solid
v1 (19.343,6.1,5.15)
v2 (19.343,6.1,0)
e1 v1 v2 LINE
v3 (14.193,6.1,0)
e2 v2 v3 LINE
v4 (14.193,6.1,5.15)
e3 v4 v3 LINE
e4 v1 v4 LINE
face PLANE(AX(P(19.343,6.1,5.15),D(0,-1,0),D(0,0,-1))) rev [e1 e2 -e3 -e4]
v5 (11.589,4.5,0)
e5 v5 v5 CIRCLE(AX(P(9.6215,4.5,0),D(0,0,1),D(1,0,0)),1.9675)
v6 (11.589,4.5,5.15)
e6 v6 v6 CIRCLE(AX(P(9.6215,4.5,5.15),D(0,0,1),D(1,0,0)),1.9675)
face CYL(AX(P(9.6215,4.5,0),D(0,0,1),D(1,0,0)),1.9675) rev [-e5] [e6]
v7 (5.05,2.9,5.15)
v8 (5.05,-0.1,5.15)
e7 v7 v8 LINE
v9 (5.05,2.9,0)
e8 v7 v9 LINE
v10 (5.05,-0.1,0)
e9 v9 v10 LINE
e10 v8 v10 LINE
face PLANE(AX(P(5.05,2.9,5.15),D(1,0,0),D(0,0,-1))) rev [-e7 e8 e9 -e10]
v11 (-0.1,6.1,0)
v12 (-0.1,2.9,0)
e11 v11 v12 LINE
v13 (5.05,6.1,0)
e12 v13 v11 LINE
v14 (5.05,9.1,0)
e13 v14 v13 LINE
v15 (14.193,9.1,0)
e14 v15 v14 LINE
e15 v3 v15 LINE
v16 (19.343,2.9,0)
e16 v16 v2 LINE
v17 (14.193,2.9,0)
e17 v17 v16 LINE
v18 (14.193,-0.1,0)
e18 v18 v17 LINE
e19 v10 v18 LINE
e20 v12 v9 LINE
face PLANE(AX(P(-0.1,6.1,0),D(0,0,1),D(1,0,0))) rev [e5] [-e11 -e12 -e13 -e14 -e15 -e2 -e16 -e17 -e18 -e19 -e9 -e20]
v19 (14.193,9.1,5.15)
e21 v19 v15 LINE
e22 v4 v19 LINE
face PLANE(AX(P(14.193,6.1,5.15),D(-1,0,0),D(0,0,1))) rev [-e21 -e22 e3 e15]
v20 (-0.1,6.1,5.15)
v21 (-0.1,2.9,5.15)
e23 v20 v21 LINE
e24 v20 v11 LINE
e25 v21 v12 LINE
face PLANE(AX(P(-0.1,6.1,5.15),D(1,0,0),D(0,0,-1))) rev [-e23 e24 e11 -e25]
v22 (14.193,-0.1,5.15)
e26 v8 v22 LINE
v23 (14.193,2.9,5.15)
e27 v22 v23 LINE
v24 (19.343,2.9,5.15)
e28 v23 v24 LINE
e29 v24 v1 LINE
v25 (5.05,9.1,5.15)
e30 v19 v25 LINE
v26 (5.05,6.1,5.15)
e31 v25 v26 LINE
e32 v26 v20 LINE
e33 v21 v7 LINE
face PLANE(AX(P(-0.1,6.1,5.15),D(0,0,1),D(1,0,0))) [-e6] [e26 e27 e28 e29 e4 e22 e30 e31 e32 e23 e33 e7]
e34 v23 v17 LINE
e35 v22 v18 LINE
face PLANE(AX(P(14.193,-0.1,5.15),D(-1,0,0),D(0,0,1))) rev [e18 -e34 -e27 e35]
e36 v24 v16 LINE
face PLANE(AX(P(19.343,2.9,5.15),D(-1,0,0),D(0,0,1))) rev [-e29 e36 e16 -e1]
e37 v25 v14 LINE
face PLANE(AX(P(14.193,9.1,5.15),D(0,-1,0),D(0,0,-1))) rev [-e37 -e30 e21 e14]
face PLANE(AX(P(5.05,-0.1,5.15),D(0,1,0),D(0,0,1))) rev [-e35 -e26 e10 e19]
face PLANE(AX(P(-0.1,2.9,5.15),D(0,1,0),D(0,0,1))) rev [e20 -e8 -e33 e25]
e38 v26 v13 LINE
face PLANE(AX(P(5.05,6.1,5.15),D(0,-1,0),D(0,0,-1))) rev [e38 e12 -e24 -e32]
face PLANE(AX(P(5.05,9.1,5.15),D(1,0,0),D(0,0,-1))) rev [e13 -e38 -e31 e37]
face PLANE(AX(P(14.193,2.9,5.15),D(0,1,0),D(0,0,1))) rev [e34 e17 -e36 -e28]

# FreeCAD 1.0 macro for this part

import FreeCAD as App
import Part
import Sketcher

V = App.Vector

doc = App.newDocument("Part")
body = doc.addObject("PartDesign::Body", "Body")

# Sketch on XY plane
sketch1 = doc.addObject("Sketcher::SketchObject", "Sketch")
body.addObject(sketch1)
sketch1.AttachmentSupport = (doc.XY_Plane, [""])
sketch1.MapMode = "FlatFace"
sketch1.addGeometry([
    Part.LineSegment(V(-0.1, 6.1, 0), V(-0.1, 2.9, 0)),  # 0
    Part.LineSegment(V(-0.1, 2.9, 0), V(5, 2.9, 0)),  # 1
    Part.LineSegment(V(5, 2.9, 0), V(5, -0.1, 0)),  # 2
    Part.LineSegment(V(5, -0.1, 0), V(14.2, -0.1, 0)),  # 3
    Part.LineSegment(V(14.2, -0.1, 0), V(14.2, 2.9, 0)),  # 4
    Part.LineSegment(V(14.2, 2.9, 0), V(19.3, 2.9, 0)),  # 5
    Part.LineSegment(V(19.3, 2.9, 0), V(19.3, 6.1, 0)),  # 6
    Part.LineSegment(V(19.3, 6.1, 0), V(14.2, 6.1, 0)),  # 7
    Part.LineSegment(V(14.2, 6.1, 0), V(14.2, 9.1, 0)),  # 8
    Part.LineSegment(V(14.2, 9.1, 0), V(5, 9.1, 0)),  # 9
    Part.LineSegment(V(5, 9.1, 0), V(5, 6.1, 0)),  # 10
    Part.LineSegment(V(5, 6.1, 0), V(-0.1, 6.1, 0)),  # 11
], False)
sketch1.addConstraint([
    Sketcher.Constraint("Coincident", 0, 2, 1, 1),
    Sketcher.Constraint("Coincident", 1, 2, 2, 1),
    Sketcher.Constraint("Coincident", 2, 2, 3, 1),
    Sketcher.Constraint("Coincident", 3, 2, 4, 1),
    Sketcher.Constraint("Coincident", 4, 2, 5, 1),
    Sketcher.Constraint("Coincident", 5, 2, 6, 1),
    Sketcher.Constraint("Coincident", 6, 2, 7, 1),
    Sketcher.Constraint("Coincident", 7, 2, 8, 1),
    Sketcher.Constraint("Coincident", 8, 2, 9, 1),
    Sketcher.Constraint("Coincident", 9, 2, 10, 1),
    Sketcher.Constraint("Coincident", 10, 2, 11, 1),
    Sketcher.Constraint("Coincident", 11, 2, 0, 1),
    Sketcher.Constraint("Vertical", 0),
    Sketcher.Constraint("Horizontal", 1),
    Sketcher.Constraint("Vertical", 2),
    Sketcher.Constraint("Horizontal", 3),
    Sketcher.Constraint("Vertical", 4),
    Sketcher.Constraint("Horizontal", 5),
    Sketcher.Constraint("Vertical", 6),
    Sketcher.Constraint("Horizontal", 7),
    Sketcher.Constraint("Vertical", 8),
    Sketcher.Constraint("Horizontal", 9),
    Sketcher.Constraint("Vertical", 10),
    Sketcher.Constraint("Horizontal", 11),
    Sketcher.Constraint("Horizontal", 1, 2, 4, 2),
    Sketcher.Constraint("Horizontal", 7, 2, 10, 2),
    Sketcher.Constraint("Vertical", 4, 2, 7, 2),
    Sketcher.Constraint("Vertical", 2, 2, 9, 2),
    Sketcher.Constraint("Equal", 1, 5),
    Sketcher.Constraint("Equal", 4, 8),
    Sketcher.Constraint("DistanceY", 2, 2, 2, 1, 3.0),
    Sketcher.Constraint("DistanceY", 0, 2, 0, 1, 3.2),
    Sketcher.Constraint("DistanceX", 1, 1, 1, 2, 5.15),
    Sketcher.Constraint("DistanceX", 0, 2, -1, 1, 0.1),
    Sketcher.Constraint("DistanceY", -1, 1, 0, 2, 2.9),
    Sketcher.Constraint("DistanceX", 3, 1, 3, 2, 9.143),
])
pad1 = doc.addObject("PartDesign::Pad", "Pad")
body.addObject(pad1)
pad1.Profile = sketch1
pad1.Length = 5.15

# Sketch on XY plane
sketch2 = doc.addObject("Sketcher::SketchObject", "Sketch001")
body.addObject(sketch2)
sketch2.AttachmentSupport = (doc.XY_Plane, [""])
sketch2.MapMode = "FlatFace"
sketch2.AttachmentOffset = App.Placement(V(0, 0, 5.15), App.Rotation())
sketch2.addGeometry(Part.Circle(V(9.6, 4.5, 0), V(0, 0, 1), 2), False)
sketch2.addConstraint([
    Sketcher.Constraint("Diameter", 0, 3.935),
    Sketcher.Constraint("DistanceY", -1, 1, 0, 3, 4.5),
    Sketcher.Constraint("DistanceX", -1, 1, 0, 3, 9.6215),
])
pocket1 = doc.addObject("PartDesign::Pocket", "Pocket")
body.addObject(pocket1)
pocket1.Profile = sketch2
pocket1.Type = "ThroughAll"

doc.recompute()
